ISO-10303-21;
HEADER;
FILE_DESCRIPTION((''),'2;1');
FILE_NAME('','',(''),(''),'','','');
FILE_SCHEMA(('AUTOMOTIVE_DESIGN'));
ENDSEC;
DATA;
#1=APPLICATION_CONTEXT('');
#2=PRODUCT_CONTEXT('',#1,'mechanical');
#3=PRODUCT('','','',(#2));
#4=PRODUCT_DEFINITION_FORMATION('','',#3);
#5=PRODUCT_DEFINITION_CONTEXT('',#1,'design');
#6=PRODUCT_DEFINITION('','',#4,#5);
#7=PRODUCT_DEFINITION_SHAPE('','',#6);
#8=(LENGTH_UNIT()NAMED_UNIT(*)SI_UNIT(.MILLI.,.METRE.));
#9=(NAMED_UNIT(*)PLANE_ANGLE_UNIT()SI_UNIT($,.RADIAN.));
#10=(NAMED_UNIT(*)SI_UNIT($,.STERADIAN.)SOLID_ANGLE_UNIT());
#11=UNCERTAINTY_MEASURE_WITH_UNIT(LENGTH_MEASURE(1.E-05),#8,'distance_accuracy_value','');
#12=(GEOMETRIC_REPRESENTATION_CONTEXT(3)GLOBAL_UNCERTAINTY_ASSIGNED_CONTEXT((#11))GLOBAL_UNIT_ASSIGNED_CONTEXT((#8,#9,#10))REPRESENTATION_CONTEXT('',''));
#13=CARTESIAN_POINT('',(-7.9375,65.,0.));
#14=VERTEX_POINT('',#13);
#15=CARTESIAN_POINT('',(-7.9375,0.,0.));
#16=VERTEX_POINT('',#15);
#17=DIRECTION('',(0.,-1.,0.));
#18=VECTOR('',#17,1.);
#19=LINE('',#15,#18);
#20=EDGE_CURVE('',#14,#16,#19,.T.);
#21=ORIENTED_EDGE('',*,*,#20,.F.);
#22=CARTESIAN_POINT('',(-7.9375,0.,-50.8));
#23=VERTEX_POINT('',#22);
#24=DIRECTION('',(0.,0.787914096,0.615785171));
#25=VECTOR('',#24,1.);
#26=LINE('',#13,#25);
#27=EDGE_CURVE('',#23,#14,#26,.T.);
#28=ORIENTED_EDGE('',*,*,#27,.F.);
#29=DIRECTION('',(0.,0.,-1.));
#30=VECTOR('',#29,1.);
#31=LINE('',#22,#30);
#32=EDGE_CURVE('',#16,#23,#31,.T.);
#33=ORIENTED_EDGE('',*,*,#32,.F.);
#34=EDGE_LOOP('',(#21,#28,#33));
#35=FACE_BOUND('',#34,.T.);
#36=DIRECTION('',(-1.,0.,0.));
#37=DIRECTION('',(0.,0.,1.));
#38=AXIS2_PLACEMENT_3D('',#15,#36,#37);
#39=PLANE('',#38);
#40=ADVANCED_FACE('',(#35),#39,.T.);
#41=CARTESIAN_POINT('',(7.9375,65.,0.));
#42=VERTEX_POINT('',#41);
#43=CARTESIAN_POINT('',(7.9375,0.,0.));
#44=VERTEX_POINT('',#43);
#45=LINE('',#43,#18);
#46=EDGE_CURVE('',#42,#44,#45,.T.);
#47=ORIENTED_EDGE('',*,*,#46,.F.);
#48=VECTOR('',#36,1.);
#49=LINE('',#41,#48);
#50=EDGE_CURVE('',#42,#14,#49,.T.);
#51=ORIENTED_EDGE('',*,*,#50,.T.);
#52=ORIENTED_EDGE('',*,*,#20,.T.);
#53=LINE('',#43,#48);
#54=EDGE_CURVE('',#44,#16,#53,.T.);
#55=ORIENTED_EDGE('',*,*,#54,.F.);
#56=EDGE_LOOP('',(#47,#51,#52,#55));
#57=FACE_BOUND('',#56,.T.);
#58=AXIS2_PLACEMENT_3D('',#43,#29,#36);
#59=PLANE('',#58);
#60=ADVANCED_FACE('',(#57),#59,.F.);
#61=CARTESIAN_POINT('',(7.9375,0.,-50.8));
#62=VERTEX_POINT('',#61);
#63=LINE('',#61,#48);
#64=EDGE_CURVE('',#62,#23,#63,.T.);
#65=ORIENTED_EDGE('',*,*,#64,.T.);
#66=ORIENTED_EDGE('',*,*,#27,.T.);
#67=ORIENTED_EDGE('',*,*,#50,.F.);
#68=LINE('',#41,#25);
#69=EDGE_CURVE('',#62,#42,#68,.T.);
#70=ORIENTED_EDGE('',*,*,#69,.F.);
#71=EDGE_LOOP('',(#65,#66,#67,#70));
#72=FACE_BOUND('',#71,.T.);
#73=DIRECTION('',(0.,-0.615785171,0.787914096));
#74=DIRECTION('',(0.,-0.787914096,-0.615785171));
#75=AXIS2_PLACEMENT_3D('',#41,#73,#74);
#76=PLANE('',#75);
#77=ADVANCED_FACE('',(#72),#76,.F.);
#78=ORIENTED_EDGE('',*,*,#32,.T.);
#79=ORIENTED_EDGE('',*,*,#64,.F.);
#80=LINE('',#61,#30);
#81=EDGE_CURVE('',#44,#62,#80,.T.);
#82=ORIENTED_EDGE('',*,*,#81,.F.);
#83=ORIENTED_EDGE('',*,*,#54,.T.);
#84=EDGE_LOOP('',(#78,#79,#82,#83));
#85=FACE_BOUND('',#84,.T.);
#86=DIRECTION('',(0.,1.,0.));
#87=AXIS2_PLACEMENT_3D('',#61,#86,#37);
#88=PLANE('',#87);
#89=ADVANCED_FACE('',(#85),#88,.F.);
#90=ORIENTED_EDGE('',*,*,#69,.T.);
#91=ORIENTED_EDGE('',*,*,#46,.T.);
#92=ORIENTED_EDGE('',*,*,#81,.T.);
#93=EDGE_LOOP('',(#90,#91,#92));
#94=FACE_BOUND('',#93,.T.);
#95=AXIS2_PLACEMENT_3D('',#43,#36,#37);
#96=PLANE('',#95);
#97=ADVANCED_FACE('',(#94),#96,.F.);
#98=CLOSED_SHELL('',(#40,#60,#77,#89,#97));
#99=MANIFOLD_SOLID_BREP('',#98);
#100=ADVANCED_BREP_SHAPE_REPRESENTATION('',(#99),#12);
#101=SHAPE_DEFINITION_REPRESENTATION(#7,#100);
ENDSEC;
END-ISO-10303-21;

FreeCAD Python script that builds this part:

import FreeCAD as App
import Part
import Sketcher
Q = App.Units.Quantity


def add_polygon(sketch, points):
    """Adds a closed chain of lines whose ends are joined by coincident constraints."""
    first, n = sketch.GeometryCount, len(points)
    for a, b in zip(points, points[1:] + points[:1]):
        sketch.addGeometry(Part.LineSegment(App.Vector(*a, 0), App.Vector(*b, 0)), False)
    for i in range(n):
        sketch.addConstraint(Sketcher.Constraint("Coincident", first + i, 2, first + (i + 1) % n, 1))

doc = App.newDocument("Part")
params = doc.addObject("Spreadsheet::Sheet", "Params")
for row, (alias, value) in enumerate([
    ("sketch1_height", "2 in"),
    ("pad1_length", "0.625 in"),
], start=1):
    params.set(f"A{row}", alias)
    params.set(f"B{row}", "=" + value)
    params.setAlias(f"B{row}", alias)

body = doc.addObject("PartDesign::Body", "Body")

# Sketch on YZ plane
sketch1 = body.newObject("Sketcher::SketchObject", "Sketch")
sketch1.AttachmentSupport = (doc.getObject("YZ_Plane"), [""])
sketch1.MapMode = "FlatFace"
add_polygon(sketch1, [(65, 0), (0, 0), (0, -50.8)])  # lines 0-2
sketch1.addConstraint([
    Sketcher.Constraint("Horizontal", 0),
    Sketcher.Constraint("Vertical", 1),
    Sketcher.Constraint("Coincident", 0, 2, -1, 1),
    Sketcher.Constraint("DistanceY", 1, 2, 1, 1, Q("2 in")),
    Sketcher.Constraint("DistanceX", 0, 2, 0, 1, 65.0),
])
sketch1.setExpression("Constraints[6]", "Params.sketch1_height")
pad1 = body.newObject("PartDesign::Pad", "Pad")
pad1.Profile = sketch1
pad1.setExpression("Length", "Params.pad1_length")
pad1.Midplane = True

doc.recompute()
